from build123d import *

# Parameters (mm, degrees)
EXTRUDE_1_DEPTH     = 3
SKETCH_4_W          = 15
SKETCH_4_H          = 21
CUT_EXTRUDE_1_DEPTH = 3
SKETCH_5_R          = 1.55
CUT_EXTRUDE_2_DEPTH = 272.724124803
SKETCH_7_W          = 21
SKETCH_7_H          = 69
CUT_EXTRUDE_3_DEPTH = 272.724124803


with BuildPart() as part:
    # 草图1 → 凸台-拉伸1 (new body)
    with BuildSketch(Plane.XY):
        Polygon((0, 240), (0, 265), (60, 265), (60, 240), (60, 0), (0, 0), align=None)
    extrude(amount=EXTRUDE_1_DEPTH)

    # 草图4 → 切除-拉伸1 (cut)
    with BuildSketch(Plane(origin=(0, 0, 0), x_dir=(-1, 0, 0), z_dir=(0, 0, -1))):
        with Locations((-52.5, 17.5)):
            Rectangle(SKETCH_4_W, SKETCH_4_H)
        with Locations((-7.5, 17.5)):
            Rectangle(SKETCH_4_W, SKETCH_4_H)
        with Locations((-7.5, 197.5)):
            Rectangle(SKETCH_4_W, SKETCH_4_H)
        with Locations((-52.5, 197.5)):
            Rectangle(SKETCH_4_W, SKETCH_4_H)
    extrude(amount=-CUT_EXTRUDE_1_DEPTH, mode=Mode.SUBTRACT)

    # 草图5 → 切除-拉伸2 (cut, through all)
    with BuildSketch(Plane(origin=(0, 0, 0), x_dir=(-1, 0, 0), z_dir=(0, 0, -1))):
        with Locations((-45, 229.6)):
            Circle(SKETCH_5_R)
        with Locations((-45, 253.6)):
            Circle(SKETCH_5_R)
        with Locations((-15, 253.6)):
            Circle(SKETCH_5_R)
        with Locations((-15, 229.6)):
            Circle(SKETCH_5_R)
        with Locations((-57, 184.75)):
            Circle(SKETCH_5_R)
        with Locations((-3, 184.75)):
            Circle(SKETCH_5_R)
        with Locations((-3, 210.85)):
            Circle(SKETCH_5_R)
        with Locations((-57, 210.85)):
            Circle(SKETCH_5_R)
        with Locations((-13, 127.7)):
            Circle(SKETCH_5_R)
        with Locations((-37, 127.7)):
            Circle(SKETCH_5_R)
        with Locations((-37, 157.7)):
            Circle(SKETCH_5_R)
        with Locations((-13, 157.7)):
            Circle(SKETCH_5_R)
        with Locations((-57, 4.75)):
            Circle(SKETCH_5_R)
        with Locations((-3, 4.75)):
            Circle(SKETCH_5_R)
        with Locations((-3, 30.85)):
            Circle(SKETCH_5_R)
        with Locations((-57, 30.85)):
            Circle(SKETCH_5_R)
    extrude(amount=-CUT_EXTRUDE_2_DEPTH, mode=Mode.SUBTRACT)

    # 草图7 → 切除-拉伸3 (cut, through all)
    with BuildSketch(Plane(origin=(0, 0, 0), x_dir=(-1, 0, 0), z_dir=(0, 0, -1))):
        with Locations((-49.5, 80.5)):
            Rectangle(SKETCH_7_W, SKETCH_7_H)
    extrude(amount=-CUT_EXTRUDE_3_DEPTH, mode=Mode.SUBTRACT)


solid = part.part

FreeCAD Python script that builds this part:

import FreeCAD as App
import Part
import Sketcher

V = App.Vector
Q = App.Units.Quantity

doc = App.newDocument("Part")
params = doc.addObject("Spreadsheet::Sheet", "Params")
for row, (alias, value) in enumerate([
    ("sketch1_width", "60 mm"),
    ("sketch1_height", "265 mm"),
    ("pad1_length", "3 mm"),
    ("sketch2_width", "15 mm"),
    ("sketch2_height", "21 mm"),
    ("pocket1_length", "3 mm"),
    ("sketch3_diameter", "3.1 mm"),
    ("sketch4_width", "21 mm"),
    ("sketch4_height", "69 mm"),
], start=1):
    params.set(f"A{row}", alias)
    params.set(f"B{row}", "=" + value)
    params.setAlias(f"B{row}", alias)

body = doc.addObject("PartDesign::Body", "Body")

sketch1 = body.newObject("Sketcher::SketchObject", "Sketch")
sketch1.AttachmentSupport = (doc.getObject("XY_Plane"), [""])
sketch1.MapMode = "FlatFace"
sketch1.addGeometry(Part.LineSegment(V(0, 265, 0), V(0, 0, 0)), False)
sketch1.addGeometry(Part.LineSegment(V(0, 0, 0), V(60, 0, 0)), False)
sketch1.addGeometry(Part.LineSegment(V(60, 0, 0), V(60, 265, 0)), False)
sketch1.addGeometry(Part.LineSegment(V(60, 265, 0), V(0, 265, 0)), False)
sketch1.addConstraint(Sketcher.Constraint("Coincident", 0, 2, 1, 1))
sketch1.addConstraint(Sketcher.Constraint("Coincident", 1, 2, 2, 1))
sketch1.addConstraint(Sketcher.Constraint("Coincident", 2, 2, 3, 1))
sketch1.addConstraint(Sketcher.Constraint("Coincident", 3, 2, 0, 1))
sketch1.addConstraint(Sketcher.Constraint("Vertical", 0))
sketch1.addConstraint(Sketcher.Constraint("Horizontal", 1))
sketch1.addConstraint(Sketcher.Constraint("Vertical", 2))
sketch1.addConstraint(Sketcher.Constraint("Horizontal", 3))
sketch1.addConstraint(Sketcher.Constraint("Coincident", 0, 2, -1, 1))
sketch1.addConstraint(Sketcher.Constraint("DistanceX", 1, 1, 1, 2, Q("60 mm")))
sketch1.addConstraint(Sketcher.Constraint("DistanceY", 0, 2, 0, 1, Q("265 mm")))
sketch1.setExpression("Constraints[9]", "Params.sketch1_width")
sketch1.setExpression("Constraints[10]", "Params.sketch1_height")
pad1 = body.newObject("PartDesign::Pad", "Pad")
pad1.Profile = sketch1
pad1.setExpression("Length", "Params.pad1_length")

sketch2 = body.newObject("Sketcher::SketchObject", "Sketch001")
sketch2.AttachmentSupport = (doc.getObject("XY_Plane"), [""])
sketch2.MapMode = "FlatFace"
sketch2.addGeometry(Part.LineSegment(V(60, 28, 0), V(60, 7, 0)), False)
sketch2.addGeometry(Part.LineSegment(V(60, 7, 0), V(45, 7, 0)), False)
sketch2.addGeometry(Part.LineSegment(V(45, 7, 0), V(45, 28, 0)), False)
sketch2.addGeometry(Part.LineSegment(V(45, 28, 0), V(60, 28, 0)), False)
sketch2.addGeometry(Part.LineSegment(V(15, 28, 0), V(15, 7, 0)), False)
sketch2.addGeometry(Part.LineSegment(V(15, 7, 0), V(0, 7, 0)), False)
sketch2.addGeometry(Part.LineSegment(V(0, 7, 0), V(0, 28, 0)), False)
sketch2.addGeometry(Part.LineSegment(V(0, 28, 0), V(15, 28, 0)), False)
sketch2.addGeometry(Part.LineSegment(V(15, 208, 0), V(15, 187, 0)), False)
sketch2.addGeometry(Part.LineSegment(V(15, 187, 0), V(0, 187, 0)), False)
sketch2.addGeometry(Part.LineSegment(V(0, 187, 0), V(0, 208, 0)), False)
sketch2.addGeometry(Part.LineSegment(V(0, 208, 0), V(15, 208, 0)), False)
sketch2.addGeometry(Part.LineSegment(V(60, 208, 0), V(60, 187, 0)), False)
sketch2.addGeometry(Part.LineSegment(V(60, 187, 0), V(45, 187, 0)), False)
sketch2.addGeometry(Part.LineSegment(V(45, 187, 0), V(45, 208, 0)), False)
sketch2.addGeometry(Part.LineSegment(V(45, 208, 0), V(60, 208, 0)), False)
sketch2.addConstraint(Sketcher.Constraint("Coincident", 0, 2, 1, 1))
sketch2.addConstraint(Sketcher.Constraint("Coincident", 1, 2, 2, 1))
sketch2.addConstraint(Sketcher.Constraint("Coincident", 2, 2, 3, 1))
sketch2.addConstraint(Sketcher.Constraint("Coincident", 3, 2, 0, 1))
sketch2.addConstraint(Sketcher.Constraint("Coincident", 4, 2, 5, 1))
sketch2.addConstraint(Sketcher.Constraint("Coincident", 5, 2, 6, 1))
sketch2.addConstraint(Sketcher.Constraint("Coincident", 6, 2, 7, 1))
sketch2.addConstraint(Sketcher.Constraint("Coincident", 7, 2, 4, 1))
sketch2.addConstraint(Sketcher.Constraint("Coincident", 8, 2, 9, 1))
sketch2.addConstraint(Sketcher.Constraint("Coincident", 9, 2, 10, 1))
sketch2.addConstraint(Sketcher.Constraint("Coincident", 10, 2, 11, 1))
sketch2.addConstraint(Sketcher.Constraint("Coincident", 11, 2, 8, 1))
sketch2.addConstraint(Sketcher.Constraint("Coincident", 12, 2, 13, 1))
sketch2.addConstraint(Sketcher.Constraint("Coincident", 13, 2, 14, 1))
sketch2.addConstraint(Sketcher.Constraint("Coincident", 14, 2, 15, 1))
sketch2.addConstraint(Sketcher.Constraint("Coincident", 15, 2, 12, 1))
sketch2.addConstraint(Sketcher.Constraint("Vertical", 0))
sketch2.addConstraint(Sketcher.Constraint("Horizontal", 1))
sketch2.addConstraint(Sketcher.Constraint("Vertical", 2))
sketch2.addConstraint(Sketcher.Constraint("Horizontal", 3))
sketch2.addConstraint(Sketcher.Constraint("Vertical", 4))
sketch2.addConstraint(Sketcher.Constraint("Horizontal", 5))
sketch2.addConstraint(Sketcher.Constraint("Vertical", 6))
sketch2.addConstraint(Sketcher.Constraint("Horizontal", 7))
sketch2.addConstraint(Sketcher.Constraint("Vertical", 8))
sketch2.addConstraint(Sketcher.Constraint("Horizontal", 9))
sketch2.addConstraint(Sketcher.Constraint("Vertical", 10))
sketch2.addConstraint(Sketcher.Constraint("Horizontal", 11))
sketch2.addConstraint(Sketcher.Constraint("Vertical", 12))
sketch2.addConstraint(Sketcher.Constraint("Horizontal", 13))
sketch2.addConstraint(Sketcher.Constraint("Vertical", 14))
sketch2.addConstraint(Sketcher.Constraint("Horizontal", 15))
sketch2.addConstraint(Sketcher.Constraint("PointOnObject", 5, 2, -2))
sketch2.addConstraint(Sketcher.Constraint("PointOnObject", 9, 2, -2))
sketch2.addConstraint(Sketcher.Constraint("Horizontal", 1, 2, 4, 2))
sketch2.addConstraint(Sketcher.Constraint("Horizontal", 3, 2, 6, 2))
sketch2.addConstraint(Sketcher.Constraint("Horizontal", 9, 2, 12, 2))
sketch2.addConstraint(Sketcher.Constraint("Horizontal", 11, 2, 14, 2))
sketch2.addConstraint(Sketcher.Constraint("Vertical", 7, 2, 8, 2))
sketch2.addConstraint(Sketcher.Constraint("Vertical", 3, 2, 12, 2))
sketch2.addConstraint(Sketcher.Constraint("Vertical", 2, 2, 13, 2))
sketch2.addConstraint(Sketcher.Constraint("Equal", 3, 5))
sketch2.addConstraint(Sketcher.Constraint("Equal", 6, 8))
sketch2.addConstraint(Sketcher.Constraint("DistanceX", 1, 2, 1, 1, Q("15 mm")))
sketch2.addConstraint(Sketcher.Constraint("DistanceY", 0, 2, 0, 1, Q("21 mm")))
sketch2.addConstraint(Sketcher.Constraint("DistanceX", -1, 1, 0, 2, Q("60 mm")))
sketch2.addConstraint(Sketcher.Constraint("DistanceY", -1, 1, 0, 2, Q("7 mm")))
sketch2.addConstraint(Sketcher.Constraint("DistanceY", -1, 1, 8, 2, Q("187 mm")))
sketch2.setExpression("Constraints[43]", "Params.sketch2_width")
sketch2.setExpression("Constraints[44]", "Params.sketch2_height")
pocket1 = body.newObject("PartDesign::Pocket", "Pocket")
pocket1.Profile = sketch2
pocket1.setExpression("Length", "Params.pocket1_length")
pocket1.Reversed = True

sketch3 = body.newObject("Sketcher::SketchObject", "Sketch002")
sketch3.AttachmentSupport = (doc.getObject("XY_Plane"), [""])
sketch3.MapMode = "FlatFace"
sketch3.addGeometry(Part.Circle(V(45, 229.6, 0), V(0, 0, 1), 1.55), False)
sketch3.addGeometry(Part.Circle(V(45, 253.6, 0), V(0, 0, 1), 1.55), False)
sketch3.addGeometry(Part.Circle(V(15, 253.6, 0), V(0, 0, 1), 1.55), False)
sketch3.addGeometry(Part.Circle(V(15, 229.6, 0), V(0, 0, 1), 1.55), False)
sketch3.addGeometry(Part.Circle(V(57, 184.75, 0), V(0, 0, 1), 1.55), False)
sketch3.addGeometry(Part.Circle(V(3, 184.75, 0), V(0, 0, 1), 1.55), False)
sketch3.addGeometry(Part.Circle(V(3, 210.85, 0), V(0, 0, 1), 1.55), False)
sketch3.addGeometry(Part.Circle(V(57, 210.85, 0), V(0, 0, 1), 1.55), False)
sketch3.addGeometry(Part.Circle(V(13, 127.7, 0), V(0, 0, 1), 1.55), False)
sketch3.addGeometry(Part.Circle(V(37, 127.7, 0), V(0, 0, 1), 1.55), False)
sketch3.addGeometry(Part.Circle(V(37, 157.7, 0), V(0, 0, 1), 1.55), False)
sketch3.addGeometry(Part.Circle(V(13, 157.7, 0), V(0, 0, 1), 1.55), False)
sketch3.addGeometry(Part.Circle(V(57, 4.75, 0), V(0, 0, 1), 1.55), False)
sketch3.addGeometry(Part.Circle(V(3, 4.75, 0), V(0, 0, 1), 1.55), False)
sketch3.addGeometry(Part.Circle(V(3, 30.85, 0), V(0, 0, 1), 1.55), False)
sketch3.addGeometry(Part.Circle(V(57, 30.85, 0), V(0, 0, 1), 1.55), False)
sketch3.addConstraint(Sketcher.Constraint("Equal", 0, 1))
sketch3.addConstraint(Sketcher.Constraint("Equal", 1, 2))
sketch3.addConstraint(Sketcher.Constraint("Equal", 2, 3))
sketch3.addConstraint(Sketcher.Constraint("Equal", 3, 4))
sketch3.addConstraint(Sketcher.Constraint("Equal", 4, 5))
sketch3.addConstraint(Sketcher.Constraint("Equal", 5, 6))
sketch3.addConstraint(Sketcher.Constraint("Equal", 6, 7))
sketch3.addConstraint(Sketcher.Constraint("Equal", 7, 8))
sketch3.addConstraint(Sketcher.Constraint("Equal", 8, 9))
sketch3.addConstraint(Sketcher.Constraint("Equal", 9, 10))
sketch3.addConstraint(Sketcher.Constraint("Equal", 10, 11))
sketch3.addConstraint(Sketcher.Constraint("Equal", 11, 12))
sketch3.addConstraint(Sketcher.Constraint("Equal", 12, 13))
sketch3.addConstraint(Sketcher.Constraint("Equal", 13, 14))
sketch3.addConstraint(Sketcher.Constraint("Equal", 14, 15))
sketch3.addConstraint(Sketcher.Constraint("Horizontal", 1, 3, 2, 3))
sketch3.addConstraint(Sketcher.Constraint("Horizontal", 0, 3, 3, 3))
sketch3.addConstraint(Sketcher.Constraint("Horizontal", 4, 3, 5, 3))
sketch3.addConstraint(Sketcher.Constraint("Horizontal", 6, 3, 7, 3))
sketch3.addConstraint(Sketcher.Constraint("Horizontal", 8, 3, 9, 3))
sketch3.addConstraint(Sketcher.Constraint("Horizontal", 10, 3, 11, 3))
sketch3.addConstraint(Sketcher.Constraint("Horizontal", 12, 3, 13, 3))
sketch3.addConstraint(Sketcher.Constraint("Horizontal", 14, 3, 15, 3))
sketch3.addConstraint(Sketcher.Constraint("Vertical", 0, 3, 1, 3))
sketch3.addConstraint(Sketcher.Constraint("Vertical", 2, 3, 3, 3))
sketch3.addConstraint(Sketcher.Constraint("Vertical", 5, 3, 6, 3))
sketch3.addConstraint(Sketcher.Constraint("Vertical", 4, 3, 7, 3))
sketch3.addConstraint(Sketcher.Constraint("Vertical", 9, 3, 10, 3))
sketch3.addConstraint(Sketcher.Constraint("Vertical", 8, 3, 11, 3))
sketch3.addConstraint(Sketcher.Constraint("Vertical", 7, 3, 12, 3))
sketch3.addConstraint(Sketcher.Constraint("Vertical", 6, 3, 13, 3))
sketch3.addConstraint(Sketcher.Constraint("Vertical", 13, 3, 14, 3))
sketch3.addConstraint(Sketcher.Constraint("Vertical", 12, 3, 15, 3))
sketch3.addConstraint(Sketcher.Constraint("Diameter", 0, Q("3.1 mm")))
sketch3.addConstraint(Sketcher.Constraint("DistanceX", -1, 1, 0, 3, Q("45 mm")))
sketch3.addConstraint(Sketcher.Constraint("DistanceX", -1, 1, 2, 3, Q("15 mm")))
sketch3.addConstraint(Sketcher.Constraint("DistanceX", -1, 1, 4, 3, Q("57 mm")))
sketch3.addConstraint(Sketcher.Constraint("DistanceX", -1, 1, 5, 3, Q("3 mm")))
sketch3.addConstraint(Sketcher.Constraint("DistanceX", -1, 1, 8, 3, Q("13 mm")))
sketch3.addConstraint(Sketcher.Constraint("DistanceX", -1, 1, 9, 3, Q("37 mm")))
sketch3.addConstraint(Sketcher.Constraint("DistanceY", 0, 3, 1, 3, Q("24 mm")))
sketch3.addConstraint(Sketcher.Constraint("DistanceY", 9, 3, 10, 3, Q("30 mm")))
sketch3.addConstraint(Sketcher.Constraint("DistanceY", 12, 3, 4, 3, Q("180 mm")))
sketch3.addConstraint(Sketcher.Constraint("DistanceY", -1, 1, 0, 3, Q("229.6 mm")))
sketch3.addConstraint(Sketcher.Constraint("DistanceY", -1, 1, 8, 3, Q("127.7 mm")))
sketch3.addConstraint(Sketcher.Constraint("DistanceY", 5, 3, 6, 3, Q("26.1 mm")))
sketch3.addConstraint(Sketcher.Constraint("DistanceY", 13, 3, 14, 3, Q("26.1 mm")))
sketch3.addConstraint(Sketcher.Constraint("DistanceY", -1, 1, 4, 3, Q("184.75 mm")))
sketch3.setExpression("Constraints[33]", "Params.sketch3_diameter")
pocket2 = body.newObject("PartDesign::Pocket", "Pocket001")
pocket2.Profile = sketch3
pocket2.Type = "ThroughAll"
pocket2.Reversed = True

sketch4 = body.newObject("Sketcher::SketchObject", "Sketch003")
sketch4.AttachmentSupport = (doc.getObject("XY_Plane"), [""])
sketch4.MapMode = "FlatFace"
sketch4.addGeometry(Part.LineSegment(V(60, 115, 0), V(60, 46, 0)), False)
sketch4.addGeometry(Part.LineSegment(V(60, 46, 0), V(39, 46, 0)), False)
sketch4.addGeometry(Part.LineSegment(V(39, 46, 0), V(39, 115, 0)), False)
sketch4.addGeometry(Part.LineSegment(V(39, 115, 0), V(60, 115, 0)), False)
sketch4.addConstraint(Sketcher.Constraint("Coincident", 0, 2, 1, 1))
sketch4.addConstraint(Sketcher.Constraint("Coincident", 1, 2, 2, 1))
sketch4.addConstraint(Sketcher.Constraint("Coincident", 2, 2, 3, 1))
sketch4.addConstraint(Sketcher.Constraint("Coincident", 3, 2, 0, 1))
sketch4.addConstraint(Sketcher.Constraint("Vertical", 0))
sketch4.addConstraint(Sketcher.Constraint("Horizontal", 1))
sketch4.addConstraint(Sketcher.Constraint("Vertical", 2))
sketch4.addConstraint(Sketcher.Constraint("Horizontal", 3))
sketch4.addConstraint(Sketcher.Constraint("DistanceX", 1, 2, 1, 1, Q("21 mm")))
sketch4.addConstraint(Sketcher.Constraint("DistanceY", 0, 2, 0, 1, Q("69 mm")))
sketch4.addConstraint(Sketcher.Constraint("DistanceX", -1, 1, 0, 2, Q("60 mm")))
sketch4.addConstraint(Sketcher.Constraint("DistanceY", -1, 1, 0, 2, Q("46 mm")))
sketch4.setExpression("Constraints[8]", "Params.sketch4_width")
sketch4.setExpression("Constraints[9]", "Params.sketch4_height")
pocket3 = body.newObject("PartDesign::Pocket", "Pocket002")
pocket3.Profile = sketch4
pocket3.Type = "ThroughAll"
pocket3.Reversed = True

doc.recompute()
